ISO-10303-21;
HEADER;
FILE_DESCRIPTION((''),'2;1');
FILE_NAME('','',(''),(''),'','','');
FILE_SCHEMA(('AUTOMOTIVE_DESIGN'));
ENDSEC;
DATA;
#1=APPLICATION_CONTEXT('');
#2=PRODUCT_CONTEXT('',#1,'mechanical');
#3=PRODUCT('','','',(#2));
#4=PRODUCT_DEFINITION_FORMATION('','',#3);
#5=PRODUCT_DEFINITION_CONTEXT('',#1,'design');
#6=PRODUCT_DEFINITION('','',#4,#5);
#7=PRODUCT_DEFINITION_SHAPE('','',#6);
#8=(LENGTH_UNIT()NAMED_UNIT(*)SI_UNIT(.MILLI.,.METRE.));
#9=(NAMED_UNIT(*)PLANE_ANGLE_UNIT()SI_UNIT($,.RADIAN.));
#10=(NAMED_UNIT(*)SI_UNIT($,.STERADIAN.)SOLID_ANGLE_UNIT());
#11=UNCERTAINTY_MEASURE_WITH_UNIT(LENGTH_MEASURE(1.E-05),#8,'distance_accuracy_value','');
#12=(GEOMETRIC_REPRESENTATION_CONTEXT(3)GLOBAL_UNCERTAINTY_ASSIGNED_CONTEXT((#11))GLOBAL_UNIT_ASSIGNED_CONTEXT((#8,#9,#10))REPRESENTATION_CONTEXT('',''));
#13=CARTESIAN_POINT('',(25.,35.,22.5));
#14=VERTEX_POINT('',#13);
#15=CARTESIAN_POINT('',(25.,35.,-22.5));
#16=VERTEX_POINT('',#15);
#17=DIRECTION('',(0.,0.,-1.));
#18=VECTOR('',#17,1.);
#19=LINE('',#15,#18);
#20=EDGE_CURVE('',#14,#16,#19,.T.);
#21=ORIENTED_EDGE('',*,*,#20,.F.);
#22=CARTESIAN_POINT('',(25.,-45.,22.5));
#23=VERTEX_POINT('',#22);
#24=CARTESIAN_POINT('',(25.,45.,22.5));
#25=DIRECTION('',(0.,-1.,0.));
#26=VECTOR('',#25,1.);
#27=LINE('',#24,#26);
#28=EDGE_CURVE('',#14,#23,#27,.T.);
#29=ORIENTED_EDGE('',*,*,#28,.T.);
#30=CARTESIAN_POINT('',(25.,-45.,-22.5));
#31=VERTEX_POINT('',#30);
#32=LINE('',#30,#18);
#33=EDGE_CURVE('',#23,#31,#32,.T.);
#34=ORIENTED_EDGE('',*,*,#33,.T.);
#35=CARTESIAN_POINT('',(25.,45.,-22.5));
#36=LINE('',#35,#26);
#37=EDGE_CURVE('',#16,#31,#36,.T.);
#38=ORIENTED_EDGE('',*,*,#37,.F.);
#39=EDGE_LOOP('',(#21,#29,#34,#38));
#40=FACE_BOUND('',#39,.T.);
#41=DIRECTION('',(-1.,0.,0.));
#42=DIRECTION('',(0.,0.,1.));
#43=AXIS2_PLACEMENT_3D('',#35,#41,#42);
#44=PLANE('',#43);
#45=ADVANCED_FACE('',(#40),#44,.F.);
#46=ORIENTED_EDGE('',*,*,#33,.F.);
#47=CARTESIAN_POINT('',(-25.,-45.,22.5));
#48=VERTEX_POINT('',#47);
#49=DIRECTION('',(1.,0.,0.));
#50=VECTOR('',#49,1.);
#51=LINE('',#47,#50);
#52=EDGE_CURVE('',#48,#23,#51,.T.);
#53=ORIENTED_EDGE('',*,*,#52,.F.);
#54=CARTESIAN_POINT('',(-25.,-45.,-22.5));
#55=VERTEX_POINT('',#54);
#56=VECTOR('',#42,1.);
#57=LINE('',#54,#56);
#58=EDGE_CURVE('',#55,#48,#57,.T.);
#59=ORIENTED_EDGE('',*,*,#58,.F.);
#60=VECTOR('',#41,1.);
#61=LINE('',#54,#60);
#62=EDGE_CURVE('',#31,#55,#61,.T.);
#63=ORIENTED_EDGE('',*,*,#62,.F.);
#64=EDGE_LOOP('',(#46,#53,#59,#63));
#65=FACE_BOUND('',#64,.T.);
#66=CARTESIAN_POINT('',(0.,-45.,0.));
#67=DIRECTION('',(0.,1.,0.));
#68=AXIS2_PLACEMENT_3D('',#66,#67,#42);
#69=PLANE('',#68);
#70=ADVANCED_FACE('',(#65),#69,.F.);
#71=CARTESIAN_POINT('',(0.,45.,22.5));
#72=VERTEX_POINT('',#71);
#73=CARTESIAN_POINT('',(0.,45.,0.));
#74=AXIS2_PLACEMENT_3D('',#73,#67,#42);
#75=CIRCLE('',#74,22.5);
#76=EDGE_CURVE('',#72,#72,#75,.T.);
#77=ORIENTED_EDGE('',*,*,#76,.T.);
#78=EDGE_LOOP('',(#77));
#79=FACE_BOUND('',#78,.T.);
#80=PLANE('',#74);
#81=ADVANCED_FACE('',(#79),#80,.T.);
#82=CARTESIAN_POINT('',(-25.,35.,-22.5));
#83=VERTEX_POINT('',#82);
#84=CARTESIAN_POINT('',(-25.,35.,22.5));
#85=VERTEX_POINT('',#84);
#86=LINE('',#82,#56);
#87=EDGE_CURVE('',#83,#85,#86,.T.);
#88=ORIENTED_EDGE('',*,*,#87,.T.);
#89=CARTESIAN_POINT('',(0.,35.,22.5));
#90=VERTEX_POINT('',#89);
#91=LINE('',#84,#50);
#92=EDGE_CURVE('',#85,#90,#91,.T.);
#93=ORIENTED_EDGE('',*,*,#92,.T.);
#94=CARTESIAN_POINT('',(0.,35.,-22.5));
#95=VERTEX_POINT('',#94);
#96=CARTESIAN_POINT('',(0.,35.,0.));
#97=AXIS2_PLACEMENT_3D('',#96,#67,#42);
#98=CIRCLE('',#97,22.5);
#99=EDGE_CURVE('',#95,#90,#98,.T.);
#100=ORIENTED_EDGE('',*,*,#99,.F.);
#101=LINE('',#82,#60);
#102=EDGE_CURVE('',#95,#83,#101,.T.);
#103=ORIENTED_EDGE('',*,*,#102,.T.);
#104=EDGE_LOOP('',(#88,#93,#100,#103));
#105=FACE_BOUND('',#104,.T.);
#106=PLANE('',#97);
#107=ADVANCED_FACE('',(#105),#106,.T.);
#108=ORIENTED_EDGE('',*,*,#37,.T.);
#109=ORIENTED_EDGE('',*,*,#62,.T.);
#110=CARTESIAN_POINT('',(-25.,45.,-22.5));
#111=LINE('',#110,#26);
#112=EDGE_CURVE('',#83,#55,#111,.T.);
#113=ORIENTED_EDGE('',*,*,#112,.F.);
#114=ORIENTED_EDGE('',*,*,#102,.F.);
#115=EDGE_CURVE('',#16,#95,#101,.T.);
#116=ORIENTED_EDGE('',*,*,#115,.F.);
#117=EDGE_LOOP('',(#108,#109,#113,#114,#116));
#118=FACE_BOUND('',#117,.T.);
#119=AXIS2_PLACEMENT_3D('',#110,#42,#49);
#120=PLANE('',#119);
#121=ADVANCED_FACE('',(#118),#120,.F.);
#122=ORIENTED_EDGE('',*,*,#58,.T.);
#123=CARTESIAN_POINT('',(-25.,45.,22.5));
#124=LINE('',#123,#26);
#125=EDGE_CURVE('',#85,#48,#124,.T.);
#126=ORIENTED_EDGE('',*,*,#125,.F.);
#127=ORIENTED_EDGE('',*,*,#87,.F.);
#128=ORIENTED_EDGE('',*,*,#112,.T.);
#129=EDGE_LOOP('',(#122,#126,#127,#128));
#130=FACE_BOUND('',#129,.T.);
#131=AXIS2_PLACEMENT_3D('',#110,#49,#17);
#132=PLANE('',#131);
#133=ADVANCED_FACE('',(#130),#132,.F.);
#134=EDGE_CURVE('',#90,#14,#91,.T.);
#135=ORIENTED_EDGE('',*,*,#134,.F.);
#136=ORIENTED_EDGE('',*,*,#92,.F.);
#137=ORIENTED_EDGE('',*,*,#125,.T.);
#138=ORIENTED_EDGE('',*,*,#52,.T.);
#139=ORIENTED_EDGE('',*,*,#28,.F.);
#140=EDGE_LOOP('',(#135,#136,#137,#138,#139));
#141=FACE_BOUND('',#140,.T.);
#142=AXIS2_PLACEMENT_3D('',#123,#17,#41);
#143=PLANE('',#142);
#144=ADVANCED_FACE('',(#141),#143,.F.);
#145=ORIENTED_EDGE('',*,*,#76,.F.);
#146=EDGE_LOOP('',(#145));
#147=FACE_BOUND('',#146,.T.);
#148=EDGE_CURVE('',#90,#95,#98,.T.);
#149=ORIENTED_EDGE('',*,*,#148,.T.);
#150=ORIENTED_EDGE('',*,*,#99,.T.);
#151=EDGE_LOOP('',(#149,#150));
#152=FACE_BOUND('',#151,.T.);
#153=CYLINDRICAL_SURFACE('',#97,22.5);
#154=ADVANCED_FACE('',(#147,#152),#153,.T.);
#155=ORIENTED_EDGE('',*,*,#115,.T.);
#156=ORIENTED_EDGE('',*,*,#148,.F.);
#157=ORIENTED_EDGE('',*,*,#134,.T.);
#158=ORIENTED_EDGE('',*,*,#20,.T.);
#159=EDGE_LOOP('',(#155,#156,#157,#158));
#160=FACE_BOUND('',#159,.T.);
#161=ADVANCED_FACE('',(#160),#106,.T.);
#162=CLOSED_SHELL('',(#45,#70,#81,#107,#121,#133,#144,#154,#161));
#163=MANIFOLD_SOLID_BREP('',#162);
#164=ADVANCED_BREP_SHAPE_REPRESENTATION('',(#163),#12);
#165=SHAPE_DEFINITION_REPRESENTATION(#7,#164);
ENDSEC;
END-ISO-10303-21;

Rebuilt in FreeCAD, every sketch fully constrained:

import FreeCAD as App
import Part
import Sketcher

V = App.Vector


def add_polygon(sketch, points):
    """Adds a closed chain of lines whose ends are joined by coincident constraints."""
    first, n = sketch.GeometryCount, len(points)
    for a, b in zip(points, points[1:] + points[:1]):
        sketch.addGeometry(Part.LineSegment(App.Vector(*a, 0), App.Vector(*b, 0)), False)
    for i in range(n):
        sketch.addConstraint(Sketcher.Constraint("Coincident", first + i, 2, first + (i + 1) % n, 1))

doc = App.newDocument("Part")
body = doc.addObject("PartDesign::Body", "Body")

# Sketch on XZ plane
sketch1 = body.newObject("Sketcher::SketchObject", "Sketch")
sketch1.AttachmentSupport = (doc.getObject("XZ_Plane"), [""])
sketch1.MapMode = "FlatFace"
add_polygon(sketch1, [(-25, -22), (-25, 22), (25, 22), (25, -22)])  # lines 0-3
sketch1.addConstraint([
    Sketcher.Constraint("Vertical", 0),
    Sketcher.Constraint("Horizontal", 1),
    Sketcher.Constraint("Vertical", 2),
    Sketcher.Constraint("Horizontal", 3),
    Sketcher.Constraint("Symmetric", 0, 2, 2, 2, -1, 1),
    Sketcher.Constraint("DistanceX", 1, 1, 1, 2, 50.0),
    Sketcher.Constraint("DistanceY", 0, 1, 0, 2, 45.0),
])
pad1 = body.newObject("PartDesign::Pad", "Pad")
pad1.Profile = sketch1
pad1.Length = 90
pad1.Midplane = True

# Sketch on XZ plane
sketch2 = body.newObject("Sketcher::SketchObject", "Sketch001")
sketch2.AttachmentSupport = (doc.getObject("XZ_Plane"), [""])
sketch2.MapMode = "FlatFace"
sketch2.AttachmentOffset = App.Placement(V(0, 0, -45), App.Rotation())
add_polygon(sketch2, [(-37, -35), (-37, 35), (37, 35), (37, -35)])  # lines 0-3
sketch2.addGeometry(Part.Circle(V(0, 0, 0), V(0, 0, 1), 22), False)  # 4
sketch2.addConstraint([
    Sketcher.Constraint("Vertical", 0),
    Sketcher.Constraint("Horizontal", 1),
    Sketcher.Constraint("Vertical", 2),
    Sketcher.Constraint("Horizontal", 3),
    Sketcher.Constraint("Coincident", 4, 3, -1, 1),
    Sketcher.Constraint("Symmetric", 0, 2, 2, 2, -1, 1),
    Sketcher.Constraint("Diameter", 4, 45.0),
    Sketcher.Constraint("DistanceX", 1, 1, 1, 2, 74.472),
    Sketcher.Constraint("DistanceY", 0, 1, 0, 2, 69.472),
])
pocket1 = body.newObject("PartDesign::Pocket", "Pocket")
pocket1.Profile = sketch2
pocket1.Length = 20
pocket1.Midplane = True

doc.recompute()
